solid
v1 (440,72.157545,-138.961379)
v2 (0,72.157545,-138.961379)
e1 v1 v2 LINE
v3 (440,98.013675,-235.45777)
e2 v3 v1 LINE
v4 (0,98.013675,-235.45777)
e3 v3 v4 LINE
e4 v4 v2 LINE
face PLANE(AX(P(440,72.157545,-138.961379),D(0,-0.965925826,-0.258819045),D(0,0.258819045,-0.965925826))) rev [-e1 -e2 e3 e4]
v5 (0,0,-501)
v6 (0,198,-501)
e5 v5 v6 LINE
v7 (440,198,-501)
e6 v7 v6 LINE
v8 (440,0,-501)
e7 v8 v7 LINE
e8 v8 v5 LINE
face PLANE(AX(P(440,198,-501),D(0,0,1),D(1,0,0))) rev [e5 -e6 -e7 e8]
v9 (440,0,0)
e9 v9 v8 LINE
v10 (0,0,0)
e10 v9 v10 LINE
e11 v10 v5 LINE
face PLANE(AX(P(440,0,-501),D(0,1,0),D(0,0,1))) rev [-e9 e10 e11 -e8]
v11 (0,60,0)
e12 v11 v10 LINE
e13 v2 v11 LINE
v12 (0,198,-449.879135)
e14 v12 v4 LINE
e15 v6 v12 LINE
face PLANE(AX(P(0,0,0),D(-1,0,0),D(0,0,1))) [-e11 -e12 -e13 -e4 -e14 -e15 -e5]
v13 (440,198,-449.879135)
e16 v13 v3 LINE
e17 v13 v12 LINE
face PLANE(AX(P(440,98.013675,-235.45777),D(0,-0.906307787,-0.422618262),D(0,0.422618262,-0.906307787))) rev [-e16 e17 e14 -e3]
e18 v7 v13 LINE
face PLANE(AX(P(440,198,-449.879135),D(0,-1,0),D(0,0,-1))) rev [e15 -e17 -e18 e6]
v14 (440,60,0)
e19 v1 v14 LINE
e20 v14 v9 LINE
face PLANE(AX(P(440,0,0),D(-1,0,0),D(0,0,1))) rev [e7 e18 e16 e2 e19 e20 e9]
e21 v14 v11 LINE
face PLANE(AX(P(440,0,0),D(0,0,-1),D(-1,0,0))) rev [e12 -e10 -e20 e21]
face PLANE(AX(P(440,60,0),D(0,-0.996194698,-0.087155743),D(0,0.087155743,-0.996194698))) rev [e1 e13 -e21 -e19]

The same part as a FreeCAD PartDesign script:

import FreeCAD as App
import Part
import Sketcher
from FreeCAD import Vector
Q = App.Units.Quantity


def add_polygon(sketch, points):
    """Adds a closed chain of lines whose ends are joined by coincident constraints."""
    first, n = sketch.GeometryCount, len(points)
    for a, b in zip(points, points[1:] + points[:1]):
        sketch.addGeometry(Part.LineSegment(App.Vector(*a, 0), App.Vector(*b, 0)), False)
    for i in range(n):
        sketch.addConstraint(Sketcher.Constraint("Coincident", first + i, 2, first + (i + 1) % n, 1))

doc = App.newDocument("Part")
body = doc.addObject("PartDesign::Body", "Body")

sketch1 = body.newObject("Sketcher::SketchObject", "Sketch")
sketch1.AttachmentSupport = (doc.getObject("YZ_Plane"), [""])
sketch1.MapMode = "FlatFace"
add_polygon(sketch1, [(98.013675, -235.45777), (72.157545, -138.961379), (60, 0), (0, 0), (0, -501), (198, -501), (198, -449.879135)])
sketch1.addConstraint(Sketcher.Constraint("Horizontal", 2))
sketch1.addConstraint(Sketcher.Constraint("Vertical", 3))
sketch1.addConstraint(Sketcher.Constraint("Horizontal", 4))
sketch1.addConstraint(Sketcher.Constraint("Vertical", 5))
sketch1.addConstraint(Sketcher.Constraint("Coincident", 2, 2, -1, 1))
sketch1.addConstraint(Sketcher.Constraint("DistanceX", 2, 2, 2, 1, Q("60 mm")))
sketch1.addConstraint(Sketcher.Constraint("DistanceX", 4, 1, 4, 2, Q("198 mm")))
sketch1.addConstraint(Sketcher.Constraint("DistanceY", 3, 2, 3, 1, Q("501 mm")))
sketch1.addConstraint(Sketcher.Constraint("Angle", 0, Q("105 deg")))
sketch1.addConstraint(Sketcher.Constraint("Angle", 1, Q("95 deg")))
sketch1.addConstraint(Sketcher.Constraint("Angle", 6, Q("115 deg")))
sketch1.addConstraint(Sketcher.Constraint("Distance", 6, Q("236.5878 mm")))
sketch1.addConstraint(Sketcher.Constraint("Distance", 1, Q("139.492189 mm")))
pad1 = body.newObject("PartDesign::Pad", "Pad")
pad1.Profile = sketch1
pad1.Length = 440

doc.recompute()
